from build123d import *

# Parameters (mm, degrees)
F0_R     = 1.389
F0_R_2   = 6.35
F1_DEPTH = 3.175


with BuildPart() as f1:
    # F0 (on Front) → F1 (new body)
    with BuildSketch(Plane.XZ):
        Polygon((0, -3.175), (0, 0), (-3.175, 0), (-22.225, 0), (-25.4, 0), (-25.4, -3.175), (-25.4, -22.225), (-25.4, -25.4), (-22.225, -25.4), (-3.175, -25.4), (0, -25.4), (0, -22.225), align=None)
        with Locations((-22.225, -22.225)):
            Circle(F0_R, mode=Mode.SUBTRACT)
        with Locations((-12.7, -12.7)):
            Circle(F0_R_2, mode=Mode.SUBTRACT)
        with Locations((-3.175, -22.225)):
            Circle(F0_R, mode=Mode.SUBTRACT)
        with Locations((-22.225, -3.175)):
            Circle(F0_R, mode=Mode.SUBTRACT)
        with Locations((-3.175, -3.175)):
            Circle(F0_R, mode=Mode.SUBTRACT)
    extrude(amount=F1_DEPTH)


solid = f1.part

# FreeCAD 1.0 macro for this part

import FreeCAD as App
import Part
import Sketcher
from FreeCAD import Vector
Q = App.Units.Quantity


def add_polygon(sketch, points):
    """Adds a closed chain of lines whose ends are joined by coincident constraints."""
    first, n = sketch.GeometryCount, len(points)
    for a, b in zip(points, points[1:] + points[:1]):
        sketch.addGeometry(Part.LineSegment(App.Vector(*a, 0), App.Vector(*b, 0)), False)
    for i in range(n):
        sketch.addConstraint(Sketcher.Constraint("Coincident", first + i, 2, first + (i + 1) % n, 1))

doc = App.newDocument("Part")
params = doc.addObject("Spreadsheet::Sheet", "Params")
for row, (alias, value) in enumerate([
    ("sketch1_diameter", "0.5 in"),
    ("sketch1_width", "1 in"),
    ("pad1_length", "0.125 in"),
], start=1):
    params.set(f"A{row}", alias)
    params.set(f"B{row}", "=" + value)
    params.setAlias(f"B{row}", alias)

body = doc.addObject("PartDesign::Body", "Body")

# Sketch on XZ plane
sketch1 = body.newObject("Sketcher::SketchObject", "Sketch")
sketch1.AttachmentSupport = (doc.getObject("XZ_Plane"), [""])
sketch1.MapMode = "FlatFace"
add_polygon(sketch1, [(0, 0), (-25.4, 0), (-25.4, -25.4), (0, -25.4)])  # lines 0-3
sketch1.addGeometry(Part.Circle(Vector(-22.2, -22.2, 0), Vector(0, 0, 1), 1.4), False)  # 4
sketch1.addGeometry(Part.Circle(Vector(-3.2, -22.2, 0), Vector(0, 0, 1), 1.4), False)  # 5
sketch1.addGeometry(Part.Circle(Vector(-22.2, -3.2, 0), Vector(0, 0, 1), 1.4), False)  # 6
sketch1.addGeometry(Part.Circle(Vector(-12.7, -12.7, 0), Vector(0, 0, 1), 6.3), False)  # 7
sketch1.addGeometry(Part.Circle(Vector(-3.2, -3.2, 0), Vector(0, 0, 1), 1.4), False)  # 8
sketch1.addConstraint([
    Sketcher.Constraint("Horizontal", 0),
    Sketcher.Constraint("Vertical", 1),
    Sketcher.Constraint("Horizontal", 2),
    Sketcher.Constraint("Vertical", 3),
    Sketcher.Constraint("Coincident", 3, 2, -1, 1),
    Sketcher.Constraint("Equal", 4, 5),
    Sketcher.Constraint("Equal", 5, 6),
    Sketcher.Constraint("Equal", 6, 8),
    Sketcher.Constraint("Horizontal", 4, 3, 5, 3),
    Sketcher.Constraint("Horizontal", 6, 3, 8, 3),
    Sketcher.Constraint("Vertical", 4, 3, 6, 3),
    Sketcher.Constraint("Vertical", 5, 3, 8, 3),
    Sketcher.Constraint("Equal", 2, 1),
    Sketcher.Constraint("Diameter", 7, Q("0.5 in")),
    Sketcher.Constraint("DistanceX", 0, 2, 0, 1, Q("1 in")),
    Sketcher.Constraint("DistanceX", 7, 3, -1, 1, Q("0.5 in")),
    Sketcher.Constraint("DistanceY", 7, 3, -1, 1, Q("0.5 in")),
    Sketcher.Constraint("Diameter", 4, Q("2.778 mm")),
    Sketcher.Constraint("DistanceX", 4, 3, 5, 3, Q("0.75 in")),
    Sketcher.Constraint("DistanceY", 4, 3, 6, 3, Q("0.75 in")),
    Sketcher.Constraint("DistanceX", 4, 3, -1, 1, Q("0.875 in")),
    Sketcher.Constraint("DistanceY", 4, 3, -1, 1, Q("0.875 in")),
])
sketch1.setExpression("Constraints[17]", "Params.sketch1_diameter")
sketch1.setExpression("Constraints[18]", "Params.sketch1_width")
pad1 = body.newObject("PartDesign::Pad", "Pad")
pad1.Profile = sketch1
pad1.setExpression("Length", "Params.pad1_length")

doc.recompute()
